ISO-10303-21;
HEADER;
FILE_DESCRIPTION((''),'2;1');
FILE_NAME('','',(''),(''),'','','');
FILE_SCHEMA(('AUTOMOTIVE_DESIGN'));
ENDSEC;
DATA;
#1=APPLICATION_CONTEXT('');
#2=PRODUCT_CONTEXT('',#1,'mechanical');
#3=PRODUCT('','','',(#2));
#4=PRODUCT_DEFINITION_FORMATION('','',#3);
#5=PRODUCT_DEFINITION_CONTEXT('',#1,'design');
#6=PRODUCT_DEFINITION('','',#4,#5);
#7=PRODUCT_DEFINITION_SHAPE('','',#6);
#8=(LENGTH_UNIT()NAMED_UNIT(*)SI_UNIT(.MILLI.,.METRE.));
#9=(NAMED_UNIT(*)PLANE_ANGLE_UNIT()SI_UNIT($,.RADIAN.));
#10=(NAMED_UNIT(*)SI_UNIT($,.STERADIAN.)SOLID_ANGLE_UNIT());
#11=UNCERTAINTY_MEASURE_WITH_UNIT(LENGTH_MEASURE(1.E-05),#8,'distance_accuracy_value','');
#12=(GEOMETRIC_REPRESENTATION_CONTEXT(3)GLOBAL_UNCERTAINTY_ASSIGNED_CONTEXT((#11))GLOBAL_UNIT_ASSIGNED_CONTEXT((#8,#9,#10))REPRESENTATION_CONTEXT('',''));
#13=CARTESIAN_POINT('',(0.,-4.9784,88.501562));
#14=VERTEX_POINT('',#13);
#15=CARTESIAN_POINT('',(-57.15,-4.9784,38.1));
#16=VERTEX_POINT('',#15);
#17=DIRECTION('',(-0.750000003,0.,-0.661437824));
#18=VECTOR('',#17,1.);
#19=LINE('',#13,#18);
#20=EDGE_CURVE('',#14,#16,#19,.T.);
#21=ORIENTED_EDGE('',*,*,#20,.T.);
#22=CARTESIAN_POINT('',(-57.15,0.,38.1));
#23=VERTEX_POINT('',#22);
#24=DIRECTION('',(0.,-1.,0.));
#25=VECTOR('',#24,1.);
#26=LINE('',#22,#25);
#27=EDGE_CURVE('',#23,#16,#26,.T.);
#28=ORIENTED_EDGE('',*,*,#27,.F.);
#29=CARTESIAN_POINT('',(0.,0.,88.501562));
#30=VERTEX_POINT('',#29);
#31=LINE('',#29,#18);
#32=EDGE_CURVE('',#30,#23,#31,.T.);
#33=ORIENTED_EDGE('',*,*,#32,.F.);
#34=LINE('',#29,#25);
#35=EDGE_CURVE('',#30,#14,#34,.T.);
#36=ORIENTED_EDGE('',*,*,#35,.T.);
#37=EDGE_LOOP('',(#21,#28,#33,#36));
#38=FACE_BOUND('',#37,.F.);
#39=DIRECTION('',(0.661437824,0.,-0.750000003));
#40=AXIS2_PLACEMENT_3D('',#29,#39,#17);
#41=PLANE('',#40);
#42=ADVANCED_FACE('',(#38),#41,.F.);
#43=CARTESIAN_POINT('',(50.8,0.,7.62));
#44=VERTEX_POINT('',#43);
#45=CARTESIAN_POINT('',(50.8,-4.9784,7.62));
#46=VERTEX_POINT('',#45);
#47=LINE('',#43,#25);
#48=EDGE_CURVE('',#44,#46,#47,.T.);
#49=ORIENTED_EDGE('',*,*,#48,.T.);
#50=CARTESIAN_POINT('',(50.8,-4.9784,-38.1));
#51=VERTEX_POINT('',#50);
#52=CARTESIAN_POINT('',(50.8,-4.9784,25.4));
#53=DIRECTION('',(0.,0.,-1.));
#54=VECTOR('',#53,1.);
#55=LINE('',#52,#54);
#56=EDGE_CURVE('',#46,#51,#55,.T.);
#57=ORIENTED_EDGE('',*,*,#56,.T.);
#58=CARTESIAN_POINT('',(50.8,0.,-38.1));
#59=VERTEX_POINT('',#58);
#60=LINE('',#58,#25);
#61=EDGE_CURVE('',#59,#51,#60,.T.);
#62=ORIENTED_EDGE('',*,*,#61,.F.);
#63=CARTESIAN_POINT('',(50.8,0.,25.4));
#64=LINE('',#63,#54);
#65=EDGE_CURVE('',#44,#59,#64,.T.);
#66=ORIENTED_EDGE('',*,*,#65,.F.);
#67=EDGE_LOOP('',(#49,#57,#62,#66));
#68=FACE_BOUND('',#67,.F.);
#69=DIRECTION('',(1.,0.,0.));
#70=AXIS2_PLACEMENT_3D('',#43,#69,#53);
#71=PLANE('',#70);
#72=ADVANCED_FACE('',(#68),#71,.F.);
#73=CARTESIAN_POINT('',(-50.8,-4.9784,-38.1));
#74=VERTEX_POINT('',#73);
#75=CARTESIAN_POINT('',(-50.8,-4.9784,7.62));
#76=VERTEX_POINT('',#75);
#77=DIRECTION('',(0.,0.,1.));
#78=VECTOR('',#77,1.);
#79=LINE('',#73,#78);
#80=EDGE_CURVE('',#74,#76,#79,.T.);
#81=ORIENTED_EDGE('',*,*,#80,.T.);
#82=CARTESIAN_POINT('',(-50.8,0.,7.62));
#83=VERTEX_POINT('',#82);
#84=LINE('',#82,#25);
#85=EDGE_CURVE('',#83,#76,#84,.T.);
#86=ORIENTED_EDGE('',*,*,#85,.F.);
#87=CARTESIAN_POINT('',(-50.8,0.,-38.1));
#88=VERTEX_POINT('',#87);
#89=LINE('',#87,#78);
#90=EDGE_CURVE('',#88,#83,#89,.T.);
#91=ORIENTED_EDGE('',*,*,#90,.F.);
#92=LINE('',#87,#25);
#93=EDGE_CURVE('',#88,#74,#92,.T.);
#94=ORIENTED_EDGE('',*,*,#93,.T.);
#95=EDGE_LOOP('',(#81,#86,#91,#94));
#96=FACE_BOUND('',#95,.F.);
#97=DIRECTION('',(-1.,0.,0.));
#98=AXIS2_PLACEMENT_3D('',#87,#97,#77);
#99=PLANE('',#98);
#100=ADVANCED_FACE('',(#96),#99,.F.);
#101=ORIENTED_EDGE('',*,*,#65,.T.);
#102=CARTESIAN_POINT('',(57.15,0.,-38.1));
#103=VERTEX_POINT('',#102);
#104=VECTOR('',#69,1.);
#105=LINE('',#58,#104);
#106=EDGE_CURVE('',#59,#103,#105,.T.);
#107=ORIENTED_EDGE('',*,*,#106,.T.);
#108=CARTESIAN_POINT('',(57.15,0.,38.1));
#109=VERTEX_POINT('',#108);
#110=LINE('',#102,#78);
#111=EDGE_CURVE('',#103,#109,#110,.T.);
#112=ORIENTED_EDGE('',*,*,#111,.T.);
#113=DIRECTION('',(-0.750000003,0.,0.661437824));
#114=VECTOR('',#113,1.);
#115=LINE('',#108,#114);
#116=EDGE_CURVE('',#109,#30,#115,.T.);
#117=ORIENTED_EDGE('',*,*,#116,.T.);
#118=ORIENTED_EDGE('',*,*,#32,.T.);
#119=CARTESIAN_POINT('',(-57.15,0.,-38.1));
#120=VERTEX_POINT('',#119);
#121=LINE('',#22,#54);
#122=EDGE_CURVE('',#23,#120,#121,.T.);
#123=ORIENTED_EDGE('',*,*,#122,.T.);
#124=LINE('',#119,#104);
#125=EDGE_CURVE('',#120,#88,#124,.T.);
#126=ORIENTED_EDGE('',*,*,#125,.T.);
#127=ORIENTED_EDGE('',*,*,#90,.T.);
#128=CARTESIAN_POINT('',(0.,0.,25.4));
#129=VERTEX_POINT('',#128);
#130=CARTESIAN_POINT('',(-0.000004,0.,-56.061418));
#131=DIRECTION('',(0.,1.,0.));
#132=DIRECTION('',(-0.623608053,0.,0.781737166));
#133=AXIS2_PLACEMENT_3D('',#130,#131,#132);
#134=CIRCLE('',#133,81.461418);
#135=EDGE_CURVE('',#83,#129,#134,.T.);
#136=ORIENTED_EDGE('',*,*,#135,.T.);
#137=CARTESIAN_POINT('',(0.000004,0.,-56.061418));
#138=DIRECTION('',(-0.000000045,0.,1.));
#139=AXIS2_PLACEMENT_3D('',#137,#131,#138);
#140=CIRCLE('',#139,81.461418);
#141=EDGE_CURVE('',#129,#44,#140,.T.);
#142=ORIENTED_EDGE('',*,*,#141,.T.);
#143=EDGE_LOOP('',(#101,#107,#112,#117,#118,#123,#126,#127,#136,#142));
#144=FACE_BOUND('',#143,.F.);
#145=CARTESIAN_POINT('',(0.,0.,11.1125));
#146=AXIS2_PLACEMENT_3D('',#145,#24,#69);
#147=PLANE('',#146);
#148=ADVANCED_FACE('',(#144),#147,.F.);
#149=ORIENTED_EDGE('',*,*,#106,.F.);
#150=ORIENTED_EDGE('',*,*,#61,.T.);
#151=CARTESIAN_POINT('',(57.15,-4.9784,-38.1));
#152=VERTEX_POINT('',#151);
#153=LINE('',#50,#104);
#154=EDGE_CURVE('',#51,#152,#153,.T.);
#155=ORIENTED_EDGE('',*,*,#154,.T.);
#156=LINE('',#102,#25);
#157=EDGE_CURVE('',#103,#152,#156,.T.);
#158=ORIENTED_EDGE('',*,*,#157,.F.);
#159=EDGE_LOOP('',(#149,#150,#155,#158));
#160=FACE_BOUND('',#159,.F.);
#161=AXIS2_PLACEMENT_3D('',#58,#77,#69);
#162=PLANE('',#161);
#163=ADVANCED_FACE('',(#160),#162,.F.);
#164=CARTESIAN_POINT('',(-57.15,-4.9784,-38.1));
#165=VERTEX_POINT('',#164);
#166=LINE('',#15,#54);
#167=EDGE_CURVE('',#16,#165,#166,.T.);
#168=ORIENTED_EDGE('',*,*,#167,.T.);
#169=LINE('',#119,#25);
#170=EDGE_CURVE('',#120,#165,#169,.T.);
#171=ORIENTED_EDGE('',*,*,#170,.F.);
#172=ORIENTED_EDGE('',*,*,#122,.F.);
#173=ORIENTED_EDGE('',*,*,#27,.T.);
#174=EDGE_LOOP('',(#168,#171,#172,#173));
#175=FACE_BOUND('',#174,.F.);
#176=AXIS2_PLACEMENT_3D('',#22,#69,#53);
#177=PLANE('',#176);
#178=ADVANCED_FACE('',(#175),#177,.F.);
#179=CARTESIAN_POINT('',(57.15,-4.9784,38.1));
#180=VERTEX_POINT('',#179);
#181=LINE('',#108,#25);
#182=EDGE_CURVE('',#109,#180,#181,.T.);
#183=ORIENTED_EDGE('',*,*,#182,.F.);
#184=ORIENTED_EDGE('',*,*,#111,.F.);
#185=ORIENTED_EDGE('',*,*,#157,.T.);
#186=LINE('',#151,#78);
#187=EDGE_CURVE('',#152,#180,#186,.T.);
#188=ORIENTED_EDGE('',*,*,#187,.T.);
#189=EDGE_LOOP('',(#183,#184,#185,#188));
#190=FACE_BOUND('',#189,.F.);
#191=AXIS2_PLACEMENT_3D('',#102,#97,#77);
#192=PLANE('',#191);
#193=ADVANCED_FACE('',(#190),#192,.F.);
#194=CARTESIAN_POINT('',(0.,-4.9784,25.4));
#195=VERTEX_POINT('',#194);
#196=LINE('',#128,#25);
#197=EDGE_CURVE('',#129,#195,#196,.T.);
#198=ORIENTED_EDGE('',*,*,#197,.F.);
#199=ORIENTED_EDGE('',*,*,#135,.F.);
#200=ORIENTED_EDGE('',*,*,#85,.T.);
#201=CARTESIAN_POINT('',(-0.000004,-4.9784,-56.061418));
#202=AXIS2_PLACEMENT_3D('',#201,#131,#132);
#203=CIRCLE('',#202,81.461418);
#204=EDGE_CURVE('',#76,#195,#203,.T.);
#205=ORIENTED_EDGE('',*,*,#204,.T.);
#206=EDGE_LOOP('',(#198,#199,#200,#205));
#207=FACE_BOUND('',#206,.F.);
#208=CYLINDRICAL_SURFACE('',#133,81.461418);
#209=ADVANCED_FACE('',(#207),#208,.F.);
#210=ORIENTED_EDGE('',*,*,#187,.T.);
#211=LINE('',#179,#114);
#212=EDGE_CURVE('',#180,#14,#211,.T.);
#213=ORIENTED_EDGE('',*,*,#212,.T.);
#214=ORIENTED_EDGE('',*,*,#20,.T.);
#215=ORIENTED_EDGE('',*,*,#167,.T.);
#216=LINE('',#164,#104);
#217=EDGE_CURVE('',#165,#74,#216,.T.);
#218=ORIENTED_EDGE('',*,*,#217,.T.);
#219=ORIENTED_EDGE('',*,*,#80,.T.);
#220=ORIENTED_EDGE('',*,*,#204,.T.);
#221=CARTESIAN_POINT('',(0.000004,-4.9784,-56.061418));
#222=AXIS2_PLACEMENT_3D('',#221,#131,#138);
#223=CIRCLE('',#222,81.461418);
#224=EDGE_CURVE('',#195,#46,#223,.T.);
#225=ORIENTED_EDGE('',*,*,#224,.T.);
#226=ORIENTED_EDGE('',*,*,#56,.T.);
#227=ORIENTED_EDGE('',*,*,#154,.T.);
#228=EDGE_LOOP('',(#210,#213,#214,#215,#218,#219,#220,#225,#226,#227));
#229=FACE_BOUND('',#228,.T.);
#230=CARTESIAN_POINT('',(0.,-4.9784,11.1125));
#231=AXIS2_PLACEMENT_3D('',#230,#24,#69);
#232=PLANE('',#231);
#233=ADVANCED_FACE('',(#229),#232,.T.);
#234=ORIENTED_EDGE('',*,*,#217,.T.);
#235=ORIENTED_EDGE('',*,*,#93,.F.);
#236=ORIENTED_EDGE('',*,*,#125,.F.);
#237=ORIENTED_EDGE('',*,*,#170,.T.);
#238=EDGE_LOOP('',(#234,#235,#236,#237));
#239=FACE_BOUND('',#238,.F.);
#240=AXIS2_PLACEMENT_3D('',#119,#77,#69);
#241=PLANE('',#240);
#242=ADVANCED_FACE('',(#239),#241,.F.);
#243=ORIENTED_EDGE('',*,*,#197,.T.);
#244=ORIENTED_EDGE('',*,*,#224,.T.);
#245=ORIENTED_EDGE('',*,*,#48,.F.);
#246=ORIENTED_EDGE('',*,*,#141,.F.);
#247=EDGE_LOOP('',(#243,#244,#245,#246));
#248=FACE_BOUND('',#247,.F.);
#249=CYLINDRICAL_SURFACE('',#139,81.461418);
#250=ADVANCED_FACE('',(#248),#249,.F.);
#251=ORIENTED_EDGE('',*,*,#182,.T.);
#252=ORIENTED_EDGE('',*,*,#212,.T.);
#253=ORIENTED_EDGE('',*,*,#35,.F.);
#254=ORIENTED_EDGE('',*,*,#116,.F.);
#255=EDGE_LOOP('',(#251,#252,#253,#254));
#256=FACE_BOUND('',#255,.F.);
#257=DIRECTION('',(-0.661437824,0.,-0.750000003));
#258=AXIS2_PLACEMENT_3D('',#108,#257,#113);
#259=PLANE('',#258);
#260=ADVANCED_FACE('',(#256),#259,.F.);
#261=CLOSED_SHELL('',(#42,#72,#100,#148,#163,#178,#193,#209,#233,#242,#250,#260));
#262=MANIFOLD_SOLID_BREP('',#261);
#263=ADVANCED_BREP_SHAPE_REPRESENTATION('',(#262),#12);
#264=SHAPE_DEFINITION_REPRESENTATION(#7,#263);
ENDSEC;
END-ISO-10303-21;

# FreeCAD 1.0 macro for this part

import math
import FreeCAD as App
import Part
import Sketcher

V = App.Vector
Q = App.Units.Quantity

doc = App.newDocument("Part")
params = doc.addObject("Spreadsheet::Sheet", "Params")
for row, (alias, value) in enumerate([
    ("sketch1_height", "3 in"),
    ("sketch1_length", "3 in"),
    ("sketch1_height2", "1.8 in"),
    ("sketch1_width", "0.25 in"),
    ("pad1_length", "0.196 in"),
], start=1):
    params.set(f"A{row}", alias)
    params.set(f"B{row}", "=" + value)
    params.setAlias(f"B{row}", alias)

body = doc.addObject("PartDesign::Body", "Body")

# Sketch on XZ plane
sketch1 = body.newObject("Sketcher::SketchObject", "Sketch")
sketch1.AttachmentSupport = (doc.getObject("XZ_Plane"), [""])
sketch1.MapMode = "FlatFace"
sketch1.addGeometry([
    Part.LineSegment(V(57, -38, 0), V(57, 38, 0)),  # 0
    Part.LineSegment(V(57, 38, 0), V(0, 89, 0)),  # 1
    Part.LineSegment(V(0, 89, 0), V(-57, 38, 0)),  # 2
    Part.LineSegment(V(-57, 38, 0), V(-57, -38, 0)),  # 3
    Part.LineSegment(V(-57, -38, 0), V(-51, -38, 0)),  # 4
    Part.LineSegment(V(-51, -38, 0), V(-51, 8, 0)),  # 5
    Part.ArcOfCircle(Part.Circle(V(0, -56, 0), V(0, 0, 1), 81), math.radians(90), math.radians(129)),  # 6
    Part.ArcOfCircle(Part.Circle(V(0, -56, 0), V(0, 0, 1), 81), math.radians(51), math.radians(90)),  # 7
    Part.LineSegment(V(51, 8, 0), V(51, -38, 0)),  # 8
    Part.LineSegment(V(51, -38, 0), V(57, -38, 0)),  # 9
], False)
sketch1.addConstraint([
    Sketcher.Constraint("Coincident", 0, 2, 1, 1),
    Sketcher.Constraint("Coincident", 1, 2, 2, 1),
    Sketcher.Constraint("Coincident", 2, 2, 3, 1),
    Sketcher.Constraint("Coincident", 3, 2, 4, 1),
    Sketcher.Constraint("Coincident", 4, 2, 5, 1),
    Sketcher.Constraint("Coincident", 5, 2, 6, 2),
    Sketcher.Constraint("Tangent", 6, 1, 7, 2),
    Sketcher.Constraint("Coincident", 7, 1, 8, 1),
    Sketcher.Constraint("Coincident", 8, 2, 9, 1),
    Sketcher.Constraint("Coincident", 9, 2, 0, 1),
    Sketcher.Constraint("Vertical", 0),
    Sketcher.Constraint("Vertical", 3),
    Sketcher.Constraint("Horizontal", 4),
    Sketcher.Constraint("Vertical", 5),
    Sketcher.Constraint("Vertical", 8),
    Sketcher.Constraint("Horizontal", 9),
    Sketcher.Constraint("Equal", 6, 7),
    Sketcher.Constraint("Symmetric", 0, 2, 3, 2, -1, 1),
    Sketcher.Constraint("Symmetric", 5, 2, 7, 1, -2),
    Sketcher.Constraint("PointOnObject", 1, 2, -2),
    Sketcher.Constraint("PointOnObject", 6, 1, -2),
    Sketcher.Constraint("Horizontal", 0, 2, 2, 2),
    Sketcher.Constraint("Horizontal", 4, 2, 8, 2),
    Sketcher.Constraint("DistanceY", 0, 1, 0, 2, Q("3 in")),
    Sketcher.Constraint("Distance", 1, Q("3 in")),
    Sketcher.Constraint("DistanceY", 5, 1, 5, 2, Q("1.8 in")),
    Sketcher.Constraint("DistanceX", 4, 2, -1, 1, Q("2 in")),
    Sketcher.Constraint("DistanceY", -1, 1, 6, 1, Q("1 in")),
    Sketcher.Constraint("DistanceX", 4, 1, 4, 2, Q("0.25 in")),
])
sketch1.setExpression("Constraints[23]", "Params.sketch1_height")
sketch1.setExpression("Constraints[24]", "Params.sketch1_length")
sketch1.setExpression("Constraints[25]", "Params.sketch1_height2")
sketch1.setExpression("Constraints[28]", "Params.sketch1_width")
pad1 = body.newObject("PartDesign::Pad", "Pad")
pad1.Profile = sketch1
pad1.setExpression("Length", "Params.pad1_length")

doc.recompute()
